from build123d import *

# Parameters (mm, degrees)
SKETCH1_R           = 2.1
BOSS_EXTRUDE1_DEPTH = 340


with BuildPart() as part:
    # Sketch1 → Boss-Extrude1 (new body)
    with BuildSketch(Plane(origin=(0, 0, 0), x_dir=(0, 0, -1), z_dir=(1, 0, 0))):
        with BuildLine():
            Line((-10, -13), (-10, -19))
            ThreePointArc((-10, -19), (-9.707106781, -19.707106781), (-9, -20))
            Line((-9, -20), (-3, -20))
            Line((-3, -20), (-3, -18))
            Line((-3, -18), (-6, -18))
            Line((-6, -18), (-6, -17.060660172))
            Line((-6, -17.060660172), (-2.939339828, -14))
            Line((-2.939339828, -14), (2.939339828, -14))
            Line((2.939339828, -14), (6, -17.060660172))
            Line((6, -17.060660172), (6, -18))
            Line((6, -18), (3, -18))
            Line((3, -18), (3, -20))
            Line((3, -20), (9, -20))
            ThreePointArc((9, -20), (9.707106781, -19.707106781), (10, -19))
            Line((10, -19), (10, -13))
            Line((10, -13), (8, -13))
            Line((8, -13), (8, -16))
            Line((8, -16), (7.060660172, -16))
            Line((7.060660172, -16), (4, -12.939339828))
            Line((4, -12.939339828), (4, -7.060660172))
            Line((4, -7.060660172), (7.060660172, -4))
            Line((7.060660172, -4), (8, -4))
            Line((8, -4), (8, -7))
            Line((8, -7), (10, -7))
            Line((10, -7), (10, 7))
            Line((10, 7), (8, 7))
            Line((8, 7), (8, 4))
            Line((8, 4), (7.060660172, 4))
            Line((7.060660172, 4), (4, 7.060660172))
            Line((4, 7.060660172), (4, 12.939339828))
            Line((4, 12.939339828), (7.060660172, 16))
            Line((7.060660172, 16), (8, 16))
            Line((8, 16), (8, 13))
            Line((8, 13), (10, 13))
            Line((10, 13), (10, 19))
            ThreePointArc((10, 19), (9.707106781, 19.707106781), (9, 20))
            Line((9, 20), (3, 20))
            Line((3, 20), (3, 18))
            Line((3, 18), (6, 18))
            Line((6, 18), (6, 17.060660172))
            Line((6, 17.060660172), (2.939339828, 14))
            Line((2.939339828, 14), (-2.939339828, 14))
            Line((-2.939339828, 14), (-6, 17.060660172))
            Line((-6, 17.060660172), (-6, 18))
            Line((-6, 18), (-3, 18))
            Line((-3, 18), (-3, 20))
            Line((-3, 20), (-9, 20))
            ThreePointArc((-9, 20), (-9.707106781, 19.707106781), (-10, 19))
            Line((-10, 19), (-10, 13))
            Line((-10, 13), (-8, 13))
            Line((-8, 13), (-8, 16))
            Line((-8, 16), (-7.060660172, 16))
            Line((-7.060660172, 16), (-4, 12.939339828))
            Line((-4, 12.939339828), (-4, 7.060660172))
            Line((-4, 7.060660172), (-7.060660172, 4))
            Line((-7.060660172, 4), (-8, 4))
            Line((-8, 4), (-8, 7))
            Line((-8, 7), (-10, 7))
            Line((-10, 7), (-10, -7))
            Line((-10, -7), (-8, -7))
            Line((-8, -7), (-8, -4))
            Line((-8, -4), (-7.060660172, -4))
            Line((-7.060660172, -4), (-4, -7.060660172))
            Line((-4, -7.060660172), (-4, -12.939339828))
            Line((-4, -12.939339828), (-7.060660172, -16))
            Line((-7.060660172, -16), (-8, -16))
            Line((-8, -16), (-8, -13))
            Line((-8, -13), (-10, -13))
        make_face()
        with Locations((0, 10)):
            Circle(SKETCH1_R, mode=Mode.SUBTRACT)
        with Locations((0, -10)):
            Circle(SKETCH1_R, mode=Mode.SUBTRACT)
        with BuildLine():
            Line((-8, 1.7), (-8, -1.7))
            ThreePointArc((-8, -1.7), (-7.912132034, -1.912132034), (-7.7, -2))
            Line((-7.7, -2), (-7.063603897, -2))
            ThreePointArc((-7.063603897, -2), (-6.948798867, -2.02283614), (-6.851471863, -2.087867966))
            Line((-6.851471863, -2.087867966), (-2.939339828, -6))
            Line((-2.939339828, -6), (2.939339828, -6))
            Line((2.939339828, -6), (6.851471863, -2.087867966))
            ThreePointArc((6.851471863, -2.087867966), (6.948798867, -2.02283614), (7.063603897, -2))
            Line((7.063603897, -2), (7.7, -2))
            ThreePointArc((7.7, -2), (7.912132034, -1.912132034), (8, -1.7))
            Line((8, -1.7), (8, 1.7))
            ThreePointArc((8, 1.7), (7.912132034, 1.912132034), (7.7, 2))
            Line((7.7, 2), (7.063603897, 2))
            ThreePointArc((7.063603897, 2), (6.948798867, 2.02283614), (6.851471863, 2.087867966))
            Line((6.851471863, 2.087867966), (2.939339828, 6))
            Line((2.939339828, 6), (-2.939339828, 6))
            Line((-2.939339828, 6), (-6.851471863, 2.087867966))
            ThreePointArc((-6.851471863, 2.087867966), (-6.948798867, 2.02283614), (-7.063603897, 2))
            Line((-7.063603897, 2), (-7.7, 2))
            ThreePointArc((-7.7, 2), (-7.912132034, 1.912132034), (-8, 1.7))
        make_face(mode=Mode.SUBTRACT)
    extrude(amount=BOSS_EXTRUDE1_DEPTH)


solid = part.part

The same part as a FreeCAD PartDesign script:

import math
import FreeCAD as App
import Part
import Sketcher

V = App.Vector
Q = App.Units.Quantity

doc = App.newDocument("Part")
body = doc.addObject("PartDesign::Body", "Body")

# Sketch on YZ plane
sketch1 = body.newObject("Sketcher::SketchObject", "Sketch")
sketch1.AttachmentSupport = (doc.getObject("YZ_Plane"), [""])
sketch1.MapMode = "FlatFace"
sketch1.addGeometry([
    Part.LineSegment(V(-13, 10, 0), V(-19, 10, 0)),  # 0
    Part.ArcOfCircle(Part.Circle(V(-19, 9, 0), V(0, 0, 1), 1), math.radians(90), math.radians(180)),  # 1
    Part.LineSegment(V(-20, 9, 0), V(-20, 3, 0)),  # 2
    Part.LineSegment(V(-20, 3, 0), V(-18, 3, 0)),  # 3
    Part.LineSegment(V(-18, 3, 0), V(-18, 6, 0)),  # 4
    Part.LineSegment(V(-18, 6, 0), V(-17.06, 6, 0)),  # 5
    Part.LineSegment(V(-17.06, 6, 0), V(-14, 2.94, 0)),  # 6
    Part.LineSegment(V(-14, 2.94, 0), V(-14, -2.94, 0)),  # 7
    Part.LineSegment(V(-14, -2.94, 0), V(-17.06, -6, 0)),  # 8
    Part.LineSegment(V(-17.06, -6, 0), V(-18, -6, 0)),  # 9
    Part.LineSegment(V(-18, -6, 0), V(-18, -3, 0)),  # 10
    Part.LineSegment(V(-18, -3, 0), V(-20, -3, 0)),  # 11
    Part.LineSegment(V(-20, -3, 0), V(-20, -9, 0)),  # 12
    Part.ArcOfCircle(Part.Circle(V(-19, -9, 0), V(0, 0, 1), 1), math.radians(-180), math.radians(-90)),  # 13
    Part.LineSegment(V(-19, -10, 0), V(-13, -10, 0)),  # 14
    Part.LineSegment(V(-13, -10, 0), V(-13, -8, 0)),  # 15
    Part.LineSegment(V(-13, -8, 0), V(-16, -8, 0)),  # 16
    Part.LineSegment(V(-16, -8, 0), V(-16, -7.06, 0)),  # 17
    Part.LineSegment(V(-16, -7.06, 0), V(-12.94, -4, 0)),  # 18
    Part.LineSegment(V(-12.94, -4, 0), V(-7.06, -4, 0)),  # 19
    Part.LineSegment(V(-7.06, -4, 0), V(-4, -7.06, 0)),  # 20
    Part.LineSegment(V(-4, -7.06, 0), V(-4, -8, 0)),  # 21
    Part.LineSegment(V(-4, -8, 0), V(-7, -8, 0)),  # 22
    Part.LineSegment(V(-7, -8, 0), V(-7, -10, 0)),  # 23
    Part.LineSegment(V(-7, -10, 0), V(7, -10, 0)),  # 24
    Part.LineSegment(V(7, -10, 0), V(7, -8, 0)),  # 25
    Part.LineSegment(V(7, -8, 0), V(4, -8, 0)),  # 26
    Part.LineSegment(V(4, -8, 0), V(4, -7.06, 0)),  # 27
    Part.LineSegment(V(4, -7.06, 0), V(7.06, -4, 0)),  # 28
    Part.LineSegment(V(7.06, -4, 0), V(12.94, -4, 0)),  # 29
    Part.LineSegment(V(12.94, -4, 0), V(16, -7.06, 0)),  # 30
    Part.LineSegment(V(16, -7.06, 0), V(16, -8, 0)),  # 31
    Part.LineSegment(V(16, -8, 0), V(13, -8, 0)),  # 32
    Part.LineSegment(V(13, -8, 0), V(13, -10, 0)),  # 33
    Part.LineSegment(V(13, -10, 0), V(19, -10, 0)),  # 34
    Part.ArcOfCircle(Part.Circle(V(19, -9, 0), V(0, 0, 1), 1), math.radians(-90), math.radians(0)),  # 35
    Part.LineSegment(V(20, -9, 0), V(20, -3, 0)),  # 36
    Part.LineSegment(V(20, -3, 0), V(18, -3, 0)),  # 37
    Part.LineSegment(V(18, -3, 0), V(18, -6, 0)),  # 38
    Part.LineSegment(V(18, -6, 0), V(17.06, -6, 0)),  # 39
    Part.LineSegment(V(17.06, -6, 0), V(14, -2.94, 0)),  # 40
    Part.LineSegment(V(14, -2.94, 0), V(14, 2.94, 0)),  # 41
    Part.LineSegment(V(14, 2.94, 0), V(17.06, 6, 0)),  # 42
    Part.LineSegment(V(17.06, 6, 0), V(18, 6, 0)),  # 43
    Part.LineSegment(V(18, 6, 0), V(18, 3, 0)),  # 44
    Part.LineSegment(V(18, 3, 0), V(20, 3, 0)),  # 45
    Part.LineSegment(V(20, 3, 0), V(20, 9, 0)),  # 46
    Part.ArcOfCircle(Part.Circle(V(19, 9, 0), V(0, 0, 1), 1), math.radians(0), math.radians(90)),  # 47
    Part.LineSegment(V(19, 10, 0), V(13, 10, 0)),  # 48
    Part.LineSegment(V(13, 10, 0), V(13, 8, 0)),  # 49
    Part.LineSegment(V(13, 8, 0), V(16, 8, 0)),  # 50
    Part.LineSegment(V(16, 8, 0), V(16, 7.06, 0)),  # 51
    Part.LineSegment(V(16, 7.06, 0), V(12.94, 4, 0)),  # 52
    Part.LineSegment(V(12.94, 4, 0), V(7.06, 4, 0)),  # 53
    Part.LineSegment(V(7.06, 4, 0), V(4, 7.06, 0)),  # 54
    Part.LineSegment(V(4, 7.06, 0), V(4, 8, 0)),  # 55
    Part.LineSegment(V(4, 8, 0), V(7, 8, 0)),  # 56
    Part.LineSegment(V(7, 8, 0), V(7, 10, 0)),  # 57
    Part.LineSegment(V(7, 10, 0), V(-7, 10, 0)),  # 58
    Part.LineSegment(V(-7, 10, 0), V(-7, 8, 0)),  # 59
    Part.LineSegment(V(-7, 8, 0), V(-4, 8, 0)),  # 60
    Part.LineSegment(V(-4, 8, 0), V(-4, 7.06, 0)),  # 61
    Part.LineSegment(V(-4, 7.06, 0), V(-7.06, 4, 0)),  # 62
    Part.LineSegment(V(-7.06, 4, 0), V(-12.94, 4, 0)),  # 63
    Part.LineSegment(V(-12.94, 4, 0), V(-16, 7.06, 0)),  # 64
    Part.LineSegment(V(-16, 7.06, 0), V(-16, 8, 0)),  # 65
    Part.LineSegment(V(-16, 8, 0), V(-13, 8, 0)),  # 66
    Part.LineSegment(V(-13, 8, 0), V(-13, 10, 0)),  # 67
    Part.Circle(V(-10, 0, 0), V(0, 0, 1), 2.1),  # 68
    Part.LineSegment(V(-1.7, 8, 0), V(1.7, 8, 0)),  # 69
    Part.ArcOfCircle(Part.Circle(V(1.7, 7.7, 0), V(0, 0, 1), 0.3), math.radians(0), math.radians(90)),  # 70
    Part.LineSegment(V(2, 7.7, 0), V(2, 7.06, 0)),  # 71
    Part.ArcOfCircle(Part.Circle(V(2.3, 7.06, 0), V(0, 0, 1), 0.3), math.radians(180), math.radians(225)),  # 72
    Part.LineSegment(V(2.09, 6.85, 0), V(6, 2.94, 0)),  # 73
    Part.LineSegment(V(6, 2.94, 0), V(6, -2.94, 0)),  # 74
    Part.LineSegment(V(6, -2.94, 0), V(2.09, -6.85, 0)),  # 75
    Part.ArcOfCircle(Part.Circle(V(2.3, -7.06, 0), V(0, 0, 1), 0.3), math.radians(135), math.radians(180)),  # 76
    Part.LineSegment(V(2, -7.06, 0), V(2, -7.7, 0)),  # 77
    Part.ArcOfCircle(Part.Circle(V(1.7, -7.7, 0), V(0, 0, 1), 0.3), math.radians(-90), math.radians(0)),  # 78
    Part.LineSegment(V(1.7, -8, 0), V(-1.7, -8, 0)),  # 79
    Part.ArcOfCircle(Part.Circle(V(-1.7, -7.7, 0), V(0, 0, 1), 0.3), math.radians(-180), math.radians(-90)),  # 80
    Part.LineSegment(V(-2, -7.7, 0), V(-2, -7.06, 0)),  # 81
    Part.ArcOfCircle(Part.Circle(V(-2.3, -7.06, 0), V(0, 0, 1), 0.3), math.radians(0), math.radians(45)),  # 82
    Part.LineSegment(V(-2.09, -6.85, 0), V(-6, -2.94, 0)),  # 83
    Part.LineSegment(V(-6, -2.94, 0), V(-6, 2.94, 0)),  # 84
    Part.LineSegment(V(-6, 2.94, 0), V(-2.09, 6.85, 0)),  # 85
    Part.ArcOfCircle(Part.Circle(V(-2.3, 7.06, 0), V(0, 0, 1), 0.3), math.radians(-45), math.radians(0)),  # 86
    Part.LineSegment(V(-2, 7.06, 0), V(-2, 7.7, 0)),  # 87
    Part.ArcOfCircle(Part.Circle(V(-1.7, 7.7, 0), V(0, 0, 1), 0.3), math.radians(90), math.radians(180)),  # 88
    Part.Circle(V(10, 0, 0), V(0, 0, 1), 2.1),  # 89
], False)
sketch1.addConstraint([
    Sketcher.Constraint("Tangent", 0, 2, 1, 1),
    Sketcher.Constraint("Tangent", 1, 2, 2, 1),
    Sketcher.Constraint("Coincident", 2, 2, 3, 1),
    Sketcher.Constraint("Coincident", 3, 2, 4, 1),
    Sketcher.Constraint("Coincident", 4, 2, 5, 1),
    Sketcher.Constraint("Coincident", 5, 2, 6, 1),
    Sketcher.Constraint("Coincident", 6, 2, 7, 1),
    Sketcher.Constraint("Coincident", 7, 2, 8, 1),
    Sketcher.Constraint("Coincident", 8, 2, 9, 1),
    Sketcher.Constraint("Coincident", 9, 2, 10, 1),
    Sketcher.Constraint("Coincident", 10, 2, 11, 1),
    Sketcher.Constraint("Coincident", 11, 2, 12, 1),
    Sketcher.Constraint("Tangent", 12, 2, 13, 1),
    Sketcher.Constraint("Tangent", 13, 2, 14, 1),
    Sketcher.Constraint("Coincident", 14, 2, 15, 1),
    Sketcher.Constraint("Coincident", 15, 2, 16, 1),
    Sketcher.Constraint("Coincident", 16, 2, 17, 1),
    Sketcher.Constraint("Coincident", 17, 2, 18, 1),
    Sketcher.Constraint("Coincident", 18, 2, 19, 1),
    Sketcher.Constraint("Coincident", 19, 2, 20, 1),
    Sketcher.Constraint("Coincident", 20, 2, 21, 1),
    Sketcher.Constraint("Coincident", 21, 2, 22, 1),
    Sketcher.Constraint("Coincident", 22, 2, 23, 1),
    Sketcher.Constraint("Coincident", 23, 2, 24, 1),
    Sketcher.Constraint("Coincident", 24, 2, 25, 1),
    Sketcher.Constraint("Coincident", 25, 2, 26, 1),
    Sketcher.Constraint("Coincident", 26, 2, 27, 1),
    Sketcher.Constraint("Coincident", 27, 2, 28, 1),
    Sketcher.Constraint("Coincident", 28, 2, 29, 1),
    Sketcher.Constraint("Coincident", 29, 2, 30, 1),
    Sketcher.Constraint("Coincident", 30, 2, 31, 1),
    Sketcher.Constraint("Coincident", 31, 2, 32, 1),
    Sketcher.Constraint("Coincident", 32, 2, 33, 1),
    Sketcher.Constraint("Coincident", 33, 2, 34, 1),
    Sketcher.Constraint("Tangent", 34, 2, 35, 1),
    Sketcher.Constraint("Tangent", 35, 2, 36, 1),
    Sketcher.Constraint("Coincident", 36, 2, 37, 1),
    Sketcher.Constraint("Coincident", 37, 2, 38, 1),
    Sketcher.Constraint("Coincident", 38, 2, 39, 1),
    Sketcher.Constraint("Coincident", 39, 2, 40, 1),
    Sketcher.Constraint("Coincident", 40, 2, 41, 1),
    Sketcher.Constraint("Coincident", 41, 2, 42, 1),
    Sketcher.Constraint("Coincident", 42, 2, 43, 1),
    Sketcher.Constraint("Coincident", 43, 2, 44, 1),
    Sketcher.Constraint("Coincident", 44, 2, 45, 1),
    Sketcher.Constraint("Coincident", 45, 2, 46, 1),
    Sketcher.Constraint("Tangent", 46, 2, 47, 1),
    Sketcher.Constraint("Tangent", 47, 2, 48, 1),
    Sketcher.Constraint("Coincident", 48, 2, 49, 1),
    Sketcher.Constraint("Coincident", 49, 2, 50, 1),
    Sketcher.Constraint("Coincident", 50, 2, 51, 1),
    Sketcher.Constraint("Coincident", 51, 2, 52, 1),
    Sketcher.Constraint("Coincident", 52, 2, 53, 1),
    Sketcher.Constraint("Coincident", 53, 2, 54, 1),
    Sketcher.Constraint("Coincident", 54, 2, 55, 1),
    Sketcher.Constraint("Coincident", 55, 2, 56, 1),
    Sketcher.Constraint("Coincident", 56, 2, 57, 1),
    Sketcher.Constraint("Coincident", 57, 2, 58, 1),
    Sketcher.Constraint("Coincident", 58, 2, 59, 1),
    Sketcher.Constraint("Coincident", 59, 2, 60, 1),
    Sketcher.Constraint("Coincident", 60, 2, 61, 1),
    Sketcher.Constraint("Coincident", 61, 2, 62, 1),
    Sketcher.Constraint("Coincident", 62, 2, 63, 1),
    Sketcher.Constraint("Coincident", 63, 2, 64, 1),
    Sketcher.Constraint("Coincident", 64, 2, 65, 1),
    Sketcher.Constraint("Coincident", 65, 2, 66, 1),
    Sketcher.Constraint("Coincident", 66, 2, 67, 1),
    Sketcher.Constraint("Coincident", 67, 2, 0, 1),
    Sketcher.Constraint("Tangent", 69, 2, 70, 2),
    Sketcher.Constraint("Tangent", 70, 1, 71, 1),
    Sketcher.Constraint("Tangent", 71, 2, 72, 1),
    Sketcher.Constraint("Tangent", 72, 2, 73, 1),
    Sketcher.Constraint("Coincident", 73, 2, 74, 1),
    Sketcher.Constraint("Coincident", 74, 2, 75, 1),
    Sketcher.Constraint("Tangent", 75, 2, 76, 1),
    Sketcher.Constraint("Tangent", 76, 2, 77, 1),
    Sketcher.Constraint("Tangent", 77, 2, 78, 2),
    Sketcher.Constraint("Tangent", 78, 1, 79, 1),
    Sketcher.Constraint("Tangent", 79, 2, 80, 2),
    Sketcher.Constraint("Tangent", 80, 1, 81, 1),
    Sketcher.Constraint("Tangent", 81, 2, 82, 1),
    Sketcher.Constraint("Tangent", 82, 2, 83, 1),
    Sketcher.Constraint("Coincident", 83, 2, 84, 1),
    Sketcher.Constraint("Coincident", 84, 2, 85, 1),
    Sketcher.Constraint("Tangent", 85, 2, 86, 1),
    Sketcher.Constraint("Tangent", 86, 2, 87, 1),
    Sketcher.Constraint("Tangent", 87, 2, 88, 2),
    Sketcher.Constraint("Tangent", 88, 1, 69, 1),
    Sketcher.Constraint("Horizontal", 0),
    Sketcher.Constraint("Vertical", 2),
    Sketcher.Constraint("Horizontal", 3),
    Sketcher.Constraint("Vertical", 4),
    Sketcher.Constraint("Horizontal", 5),
    Sketcher.Constraint("Vertical", 7),
    Sketcher.Constraint("Horizontal", 9),
    Sketcher.Constraint("Vertical", 10),
    Sketcher.Constraint("Horizontal", 11),
    Sketcher.Constraint("Vertical", 12),
    Sketcher.Constraint("Horizontal", 14),
    Sketcher.Constraint("Vertical", 15),
    Sketcher.Constraint("Horizontal", 16),
    Sketcher.Constraint("Vertical", 17),
    Sketcher.Constraint("Horizontal", 19),
    Sketcher.Constraint("Vertical", 21),
    Sketcher.Constraint("Horizontal", 22),
    Sketcher.Constraint("Vertical", 23),
    Sketcher.Constraint("Horizontal", 24),
    Sketcher.Constraint("Vertical", 25),
    Sketcher.Constraint("Horizontal", 26),
    Sketcher.Constraint("Vertical", 27),
    Sketcher.Constraint("Horizontal", 29),
    Sketcher.Constraint("Vertical", 31),
    Sketcher.Constraint("Horizontal", 32),
    Sketcher.Constraint("Vertical", 33),
    Sketcher.Constraint("Horizontal", 34),
    Sketcher.Constraint("Vertical", 36),
    Sketcher.Constraint("Horizontal", 37),
    Sketcher.Constraint("Vertical", 38),
    Sketcher.Constraint("Horizontal", 39),
    Sketcher.Constraint("Vertical", 41),
    Sketcher.Constraint("Horizontal", 43),
    Sketcher.Constraint("Vertical", 44),
    Sketcher.Constraint("Horizontal", 45),
    Sketcher.Constraint("Vertical", 46),
    Sketcher.Constraint("Horizontal", 48),
    Sketcher.Constraint("Vertical", 49),
    Sketcher.Constraint("Horizontal", 50),
    Sketcher.Constraint("Vertical", 51),
    Sketcher.Constraint("Horizontal", 53),
    Sketcher.Constraint("Vertical", 55),
    Sketcher.Constraint("Horizontal", 56),
    Sketcher.Constraint("Vertical", 57),
    Sketcher.Constraint("Horizontal", 58),
    Sketcher.Constraint("Vertical", 59),
    Sketcher.Constraint("Horizontal", 60),
    Sketcher.Constraint("Vertical", 61),
    Sketcher.Constraint("Horizontal", 63),
    Sketcher.Constraint("Vertical", 65),
    Sketcher.Constraint("Horizontal", 66),
    Sketcher.Constraint("Vertical", 67),
    Sketcher.Constraint("Horizontal", 69),
    Sketcher.Constraint("Vertical", 71),
    Sketcher.Constraint("Vertical", 74),
    Sketcher.Constraint("Vertical", 77),
    Sketcher.Constraint("Horizontal", 79),
    Sketcher.Constraint("Vertical", 81),
    Sketcher.Constraint("Vertical", 84),
    Sketcher.Constraint("Vertical", 87),
    Sketcher.Constraint("Equal", 1, 13),
    Sketcher.Constraint("Equal", 13, 35),
    Sketcher.Constraint("Equal", 35, 47),
    Sketcher.Constraint("Equal", 70, 72),
    Sketcher.Constraint("Equal", 72, 76),
    Sketcher.Constraint("Equal", 76, 78),
    Sketcher.Constraint("Equal", 78, 80),
    Sketcher.Constraint("Equal", 80, 82),
    Sketcher.Constraint("Equal", 82, 86),
    Sketcher.Constraint("Equal", 86, 88),
    Sketcher.Constraint("Equal", 68, 89),
    Sketcher.Constraint("Symmetric", 1, 3, 35, 3, -1, 1),
    Sketcher.Constraint("Symmetric", 13, 3, 47, 3, -1, 1),
    Sketcher.Constraint("Symmetric", 70, 3, 80, 3, -1, 1),
    Sketcher.Constraint("Symmetric", 76, 3, 86, 3, -1, 1),
    Sketcher.Constraint("Symmetric", 68, 3, 89, 3, -1, 1),
    Sketcher.Constraint("Symmetric", 3, 2, 37, 2, -1, 1),
    Sketcher.Constraint("Symmetric", 5, 2, 39, 2, -1, 1),
    Sketcher.Constraint("Symmetric", 6, 2, 40, 2, -1, 1),
    Sketcher.Constraint("Symmetric", 8, 2, 42, 2, -1, 1),
    Sketcher.Constraint("Symmetric", 10, 2, 44, 2, -1, 1),
    Sketcher.Constraint("Symmetric", 15, 2, 49, 2, -1, 1),
    Sketcher.Constraint("Symmetric", 17, 2, 51, 2, -1, 1),
    Sketcher.Constraint("Symmetric", 18, 2, 52, 2, -1, 1),
    Sketcher.Constraint("Symmetric", 20, 2, 54, 2, -1, 1),
    Sketcher.Constraint("Symmetric", 22, 2, 56, 2, -1, 1),
    Sketcher.Constraint("Symmetric", 24, 2, 58, 2, -1, 1),
    Sketcher.Constraint("Symmetric", 26, 2, 60, 2, -1, 1),
    Sketcher.Constraint("Symmetric", 28, 2, 62, 2, -1, 1),
    Sketcher.Constraint("Symmetric", 30, 2, 64, 2, -1, 1),
    Sketcher.Constraint("Symmetric", 32, 2, 66, 2, -1, 1),
    Sketcher.Constraint("Symmetric", 72, 2, 82, 2, -1, 1),
    Sketcher.Constraint("Symmetric", 74, 2, 84, 2, -1, 1),
    Sketcher.Constraint("Symmetric", 13, 3, 35, 3, -2),
    Sketcher.Constraint("Symmetric", 76, 3, 82, 3, -2),
    Sketcher.Constraint("Symmetric", 22, 2, 25, 2, -2),
    Sketcher.Constraint("Symmetric", 20, 2, 27, 2, -2),
    Sketcher.Constraint("Symmetric", 19, 2, 28, 2, -2),
    Sketcher.Constraint("Symmetric", 17, 2, 30, 2, -2),
    Sketcher.Constraint("Symmetric", 15, 2, 32, 2, -2),
    Sketcher.Constraint("Symmetric", 10, 2, 37, 2, -2),
    Sketcher.Constraint("Symmetric", 8, 2, 39, 2, -2),
    Sketcher.Constraint("PointOnObject", 68, 3, -1),
    Sketcher.Constraint("Perpendicular", 6, 8),
    Sketcher.Constraint("Parallel", 8, 18),
    Sketcher.Constraint("Perpendicular", 18, 20),
    Sketcher.Constraint("Perpendicular", 20, 28),
    Sketcher.Constraint("Perpendicular", 28, 30),
    Sketcher.Constraint("Perpendicular", 40, 42),
    Sketcher.Constraint("Perpendicular", 52, 54),
    Sketcher.Constraint("Perpendicular", 54, 62),
    Sketcher.Constraint("Perpendicular", 62, 64),
    Sketcher.Constraint("Parallel", 64, 73),
    Sketcher.Constraint("Perpendicular", 73, 75),
    Sketcher.Constraint("Horizontal", 17, 2, 20, 2),
    Sketcher.Constraint("Horizontal", 16, 2, 21, 2),
    Sketcher.Constraint("Horizontal", 14, 2, 23, 2),
    Sketcher.Constraint("Horizontal", 66, 2, 69, 2),
    Sketcher.Constraint("Horizontal", 41, 2, 73, 2),
    Sketcher.Constraint("Equal", 16, 22),
    Sketcher.Constraint("Equal", 48, 2),
    Sketcher.Constraint("Equal", 66, 4),
    Sketcher.Constraint("Equal", 63, 7),
    Sketcher.Constraint("Equal", 45, 15),
    Sketcher.Constraint("Equal", 43, 17),
    Sketcher.Constraint("Equal", 8, 18),
    Sketcher.Constraint("Radius", 1, Q("1 mm")),
    Sketcher.Constraint("Diameter", 68, Q("4.2 mm")),
    Sketcher.Constraint("Radius", 70, Q("0.3 mm")),
    Sketcher.Constraint("DistanceX", 0, 2, 0, 1, Q("6 mm")),
    Sketcher.Constraint("DistanceX", 3, 1, 3, 2, Q("2 mm")),
    Sketcher.Constraint("DistanceX", 16, 2, 16, 1, Q("3 mm")),
    Sketcher.Constraint("DistanceX", 24, 1, 24, 2, Q("14 mm")),
    Sketcher.Constraint("DistanceX", 69, 1, 69, 2, Q("3.4 mm")),
    Sketcher.Constraint("DistanceX", 1, 3, -1, 1, Q("19 mm")),
    Sketcher.Constraint("DistanceX", 68, 3, -1, 1, Q("10 mm")),
    Sketcher.Constraint("DistanceX", 6, 2, -1, 1, Q("14 mm")),
    Sketcher.Constraint("DistanceX", -1, 1, 73, 2, Q("6 mm")),
    Sketcher.Constraint("DistanceX", 5, 1, 5, 2, Q("0.93934 mm")),
])
pad1 = body.newObject("PartDesign::Pad", "Pad")
pad1.Profile = sketch1
pad1.Length = 340

doc.recompute()
